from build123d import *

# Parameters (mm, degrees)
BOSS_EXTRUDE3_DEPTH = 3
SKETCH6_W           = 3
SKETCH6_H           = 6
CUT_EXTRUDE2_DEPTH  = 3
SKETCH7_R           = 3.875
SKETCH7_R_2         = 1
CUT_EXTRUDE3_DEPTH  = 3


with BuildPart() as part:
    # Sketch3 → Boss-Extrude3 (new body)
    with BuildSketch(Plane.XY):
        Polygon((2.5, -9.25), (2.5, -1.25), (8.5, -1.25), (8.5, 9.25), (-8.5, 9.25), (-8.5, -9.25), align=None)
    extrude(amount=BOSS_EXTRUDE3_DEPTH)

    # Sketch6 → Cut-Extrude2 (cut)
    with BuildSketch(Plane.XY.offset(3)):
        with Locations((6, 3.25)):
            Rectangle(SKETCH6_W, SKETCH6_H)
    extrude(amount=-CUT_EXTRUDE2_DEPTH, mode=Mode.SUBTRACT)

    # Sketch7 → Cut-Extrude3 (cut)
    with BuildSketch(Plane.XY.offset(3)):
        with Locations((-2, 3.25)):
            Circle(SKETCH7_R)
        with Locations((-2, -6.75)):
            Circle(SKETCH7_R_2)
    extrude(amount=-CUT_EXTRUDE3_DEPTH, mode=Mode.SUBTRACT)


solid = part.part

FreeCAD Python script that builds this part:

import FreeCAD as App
import Part
import Sketcher
from FreeCAD import Vector
Q = App.Units.Quantity

doc = App.newDocument("Part")
body = doc.addObject("PartDesign::Body", "Body")

# Sketch on XY plane
sketch1 = doc.addObject("Sketcher::SketchObject", "Sketch")
body.addObject(sketch1)
sketch1.AttachmentSupport = (doc.XY_Plane, [""])
sketch1.MapMode = "FlatFace"
sketch1.addGeometry(Part.LineSegment(Vector(2, -9, 0), Vector(2, -1, 0)), False)
sketch1.addGeometry(Part.LineSegment(Vector(2, -1, 0), Vector(8, -1, 0)), False)
sketch1.addGeometry(Part.LineSegment(Vector(8, -1, 0), Vector(8, 9, 0)), False)
sketch1.addGeometry(Part.LineSegment(Vector(8, 9, 0), Vector(-8, 9, 0)), False)
sketch1.addGeometry(Part.LineSegment(Vector(-8, 9, 0), Vector(-8, -9, 0)), False)
sketch1.addGeometry(Part.LineSegment(Vector(-8, -9, 0), Vector(2, -9, 0)), False)
sketch1.addConstraint(Sketcher.Constraint("Coincident", 0, 2, 1, 1))
sketch1.addConstraint(Sketcher.Constraint("Coincident", 1, 2, 2, 1))
sketch1.addConstraint(Sketcher.Constraint("Coincident", 2, 2, 3, 1))
sketch1.addConstraint(Sketcher.Constraint("Coincident", 3, 2, 4, 1))
sketch1.addConstraint(Sketcher.Constraint("Coincident", 4, 2, 5, 1))
sketch1.addConstraint(Sketcher.Constraint("Coincident", 5, 2, 0, 1))
sketch1.addConstraint(Sketcher.Constraint("Vertical", 0))
sketch1.addConstraint(Sketcher.Constraint("Horizontal", 1))
sketch1.addConstraint(Sketcher.Constraint("Vertical", 2))
sketch1.addConstraint(Sketcher.Constraint("Horizontal", 3))
sketch1.addConstraint(Sketcher.Constraint("Vertical", 4))
sketch1.addConstraint(Sketcher.Constraint("Horizontal", 5))
sketch1.addConstraint(Sketcher.Constraint("Symmetric", 2, 2, 4, 2, -1, 1))
sketch1.addConstraint(Sketcher.Constraint("DistanceX", 1, 1, 1, 2, Q("6 mm")))
sketch1.addConstraint(Sketcher.Constraint("DistanceX", 3, 2, 3, 1, Q("17 mm")))
sketch1.addConstraint(Sketcher.Constraint("DistanceY", 0, 1, 0, 2, Q("8 mm")))
sketch1.addConstraint(Sketcher.Constraint("DistanceY", 2, 1, 2, 2, Q("10.5 mm")))
pad1 = doc.addObject("PartDesign::Pad", "Pad")
body.addObject(pad1)
pad1.Profile = sketch1
pad1.Length = 3

# Sketch on XY plane
sketch2 = doc.addObject("Sketcher::SketchObject", "Sketch001")
body.addObject(sketch2)
sketch2.AttachmentSupport = (doc.XY_Plane, [""])
sketch2.MapMode = "FlatFace"
sketch2.AttachmentOffset = App.Placement(Vector(0, 0, 3), App.Rotation())
sketch2.addGeometry(Part.LineSegment(Vector(4.5, 6.2, 0), Vector(4.5, 0.2, 0)), False)
sketch2.addGeometry(Part.LineSegment(Vector(4.5, 0.2, 0), Vector(7.5, 0.2, 0)), False)
sketch2.addGeometry(Part.LineSegment(Vector(7.5, 0.2, 0), Vector(7.5, 6.2, 0)), False)
sketch2.addGeometry(Part.LineSegment(Vector(7.5, 6.2, 0), Vector(4.5, 6.2, 0)), False)
sketch2.addConstraint(Sketcher.Constraint("Coincident", 0, 2, 1, 1))
sketch2.addConstraint(Sketcher.Constraint("Coincident", 1, 2, 2, 1))
sketch2.addConstraint(Sketcher.Constraint("Coincident", 2, 2, 3, 1))
sketch2.addConstraint(Sketcher.Constraint("Coincident", 3, 2, 0, 1))
sketch2.addConstraint(Sketcher.Constraint("Vertical", 0))
sketch2.addConstraint(Sketcher.Constraint("Horizontal", 1))
sketch2.addConstraint(Sketcher.Constraint("Vertical", 2))
sketch2.addConstraint(Sketcher.Constraint("Horizontal", 3))
sketch2.addConstraint(Sketcher.Constraint("DistanceX", 1, 1, 1, 2, Q("3 mm")))
sketch2.addConstraint(Sketcher.Constraint("DistanceY", 0, 2, 0, 1, Q("6 mm")))
sketch2.addConstraint(Sketcher.Constraint("DistanceX", -1, 1, 0, 2, Q("4.5 mm")))
sketch2.addConstraint(Sketcher.Constraint("DistanceY", -1, 1, 0, 2, Q("0.25 mm")))
pocket1 = doc.addObject("PartDesign::Pocket", "Pocket")
body.addObject(pocket1)
pocket1.Profile = sketch2
pocket1.Length = 3

# Sketch on XY plane
sketch3 = doc.addObject("Sketcher::SketchObject", "Sketch002")
body.addObject(sketch3)
sketch3.AttachmentSupport = (doc.XY_Plane, [""])
sketch3.MapMode = "FlatFace"
sketch3.AttachmentOffset = App.Placement(Vector(0, 0, 3), App.Rotation())
sketch3.addGeometry(Part.Circle(Vector(-2, 3.2, 0), Vector(0, 0, 1), 3.9), False)
sketch3.addGeometry(Part.Circle(Vector(-2, -6.8, 0), Vector(0, 0, 1), 1), False)
sketch3.addConstraint(Sketcher.Constraint("Vertical", 0, 3, 1, 3))
sketch3.addConstraint(Sketcher.Constraint("Diameter", 1, Q("2 mm")))
sketch3.addConstraint(Sketcher.Constraint("Diameter", 0, Q("7.75 mm")))
sketch3.addConstraint(Sketcher.Constraint("DistanceX", 0, 3, -1, 1, Q("2 mm")))
sketch3.addConstraint(Sketcher.Constraint("DistanceY", 1, 3, 0, 3, Q("10 mm")))
sketch3.addConstraint(Sketcher.Constraint("DistanceY", -1, 1, 0, 3, Q("3.25 mm")))
pocket2 = doc.addObject("PartDesign::Pocket", "Pocket001")
body.addObject(pocket2)
pocket2.Profile = sketch3
pocket2.Length = 3

doc.recompute()
